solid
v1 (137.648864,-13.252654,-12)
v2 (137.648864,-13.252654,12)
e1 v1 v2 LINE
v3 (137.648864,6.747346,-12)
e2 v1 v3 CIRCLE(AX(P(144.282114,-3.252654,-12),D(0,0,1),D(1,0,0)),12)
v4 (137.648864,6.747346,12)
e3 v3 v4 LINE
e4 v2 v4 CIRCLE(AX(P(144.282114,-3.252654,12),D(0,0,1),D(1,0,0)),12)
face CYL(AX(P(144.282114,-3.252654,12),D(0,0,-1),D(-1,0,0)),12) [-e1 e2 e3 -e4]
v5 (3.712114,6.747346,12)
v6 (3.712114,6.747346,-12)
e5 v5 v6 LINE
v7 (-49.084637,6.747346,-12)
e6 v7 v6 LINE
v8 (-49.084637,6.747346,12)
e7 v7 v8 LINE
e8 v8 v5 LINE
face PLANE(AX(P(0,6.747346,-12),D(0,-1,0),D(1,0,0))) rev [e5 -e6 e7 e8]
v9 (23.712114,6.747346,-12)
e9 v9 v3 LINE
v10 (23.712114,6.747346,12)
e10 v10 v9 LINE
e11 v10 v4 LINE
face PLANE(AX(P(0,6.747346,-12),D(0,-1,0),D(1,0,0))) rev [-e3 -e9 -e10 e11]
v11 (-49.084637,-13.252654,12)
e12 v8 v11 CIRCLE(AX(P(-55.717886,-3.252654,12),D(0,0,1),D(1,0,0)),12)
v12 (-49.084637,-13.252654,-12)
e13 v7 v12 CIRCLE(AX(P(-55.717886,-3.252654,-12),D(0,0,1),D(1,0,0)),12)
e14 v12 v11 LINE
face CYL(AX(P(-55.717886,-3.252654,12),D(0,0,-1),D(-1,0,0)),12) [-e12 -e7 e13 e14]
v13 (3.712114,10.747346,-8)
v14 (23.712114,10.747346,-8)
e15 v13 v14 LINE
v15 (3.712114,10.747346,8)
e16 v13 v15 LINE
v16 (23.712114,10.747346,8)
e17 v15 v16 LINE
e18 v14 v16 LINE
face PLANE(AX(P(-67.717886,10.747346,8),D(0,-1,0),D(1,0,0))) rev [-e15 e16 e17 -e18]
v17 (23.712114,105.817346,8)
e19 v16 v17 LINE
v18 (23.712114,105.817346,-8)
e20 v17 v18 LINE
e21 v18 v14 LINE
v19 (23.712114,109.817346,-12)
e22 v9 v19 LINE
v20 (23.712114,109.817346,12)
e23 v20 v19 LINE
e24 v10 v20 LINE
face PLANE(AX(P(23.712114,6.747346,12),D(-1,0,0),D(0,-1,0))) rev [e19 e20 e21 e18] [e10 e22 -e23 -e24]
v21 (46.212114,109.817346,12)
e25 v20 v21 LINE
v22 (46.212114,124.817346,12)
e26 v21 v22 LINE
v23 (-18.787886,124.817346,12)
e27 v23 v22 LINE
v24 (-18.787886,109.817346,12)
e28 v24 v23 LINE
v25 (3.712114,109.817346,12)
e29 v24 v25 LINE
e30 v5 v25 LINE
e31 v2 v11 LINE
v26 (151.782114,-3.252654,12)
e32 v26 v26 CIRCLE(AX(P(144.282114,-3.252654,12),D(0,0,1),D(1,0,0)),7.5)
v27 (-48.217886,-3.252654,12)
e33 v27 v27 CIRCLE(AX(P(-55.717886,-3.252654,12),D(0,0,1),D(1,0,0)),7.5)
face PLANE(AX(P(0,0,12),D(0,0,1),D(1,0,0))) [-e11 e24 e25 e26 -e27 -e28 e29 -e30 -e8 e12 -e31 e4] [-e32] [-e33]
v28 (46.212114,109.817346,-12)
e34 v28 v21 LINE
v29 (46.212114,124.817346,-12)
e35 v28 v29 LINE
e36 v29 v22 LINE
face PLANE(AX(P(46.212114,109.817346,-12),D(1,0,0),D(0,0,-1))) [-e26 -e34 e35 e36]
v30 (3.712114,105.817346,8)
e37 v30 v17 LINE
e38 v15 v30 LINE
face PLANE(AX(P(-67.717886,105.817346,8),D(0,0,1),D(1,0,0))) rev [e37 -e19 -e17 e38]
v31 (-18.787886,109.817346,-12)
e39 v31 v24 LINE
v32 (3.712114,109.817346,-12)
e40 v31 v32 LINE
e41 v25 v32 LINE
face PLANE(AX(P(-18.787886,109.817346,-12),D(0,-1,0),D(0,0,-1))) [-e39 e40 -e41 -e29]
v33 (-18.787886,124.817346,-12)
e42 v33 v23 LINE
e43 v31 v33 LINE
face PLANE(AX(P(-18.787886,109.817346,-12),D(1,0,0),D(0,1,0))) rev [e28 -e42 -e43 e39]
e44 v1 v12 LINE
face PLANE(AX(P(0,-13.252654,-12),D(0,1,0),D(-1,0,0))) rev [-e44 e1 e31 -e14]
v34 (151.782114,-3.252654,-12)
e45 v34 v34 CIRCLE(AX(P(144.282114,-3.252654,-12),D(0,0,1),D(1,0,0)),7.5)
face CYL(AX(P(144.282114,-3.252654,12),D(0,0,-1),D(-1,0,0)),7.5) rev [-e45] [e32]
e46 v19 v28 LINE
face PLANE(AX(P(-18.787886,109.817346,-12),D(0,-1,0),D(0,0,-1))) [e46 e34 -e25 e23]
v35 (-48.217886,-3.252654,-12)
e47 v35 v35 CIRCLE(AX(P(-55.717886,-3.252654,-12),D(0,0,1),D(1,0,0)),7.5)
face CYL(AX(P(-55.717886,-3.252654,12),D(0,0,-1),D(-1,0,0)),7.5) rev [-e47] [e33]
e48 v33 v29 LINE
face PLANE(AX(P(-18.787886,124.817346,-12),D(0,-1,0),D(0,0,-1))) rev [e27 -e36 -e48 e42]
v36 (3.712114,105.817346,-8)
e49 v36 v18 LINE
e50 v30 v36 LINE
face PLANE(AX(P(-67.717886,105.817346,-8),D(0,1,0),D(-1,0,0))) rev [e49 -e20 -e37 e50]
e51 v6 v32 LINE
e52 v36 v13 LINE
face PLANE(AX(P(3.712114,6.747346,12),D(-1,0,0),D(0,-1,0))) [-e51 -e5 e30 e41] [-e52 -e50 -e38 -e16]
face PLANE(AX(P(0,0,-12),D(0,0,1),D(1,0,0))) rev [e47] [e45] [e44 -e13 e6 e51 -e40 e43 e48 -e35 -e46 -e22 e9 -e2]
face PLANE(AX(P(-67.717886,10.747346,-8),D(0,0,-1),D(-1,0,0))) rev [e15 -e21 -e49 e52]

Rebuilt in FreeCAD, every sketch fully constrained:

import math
import FreeCAD as App
import Part
import Sketcher

V = App.Vector
Q = App.Units.Quantity

doc = App.newDocument("Part")
body = doc.addObject("PartDesign::Body", "Body")

# Sketch on XY plane
sketch1 = doc.addObject("Sketcher::SketchObject", "Sketch")
body.addObject(sketch1)
sketch1.AttachmentSupport = (doc.XY_Plane, [""])
sketch1.MapMode = "FlatFace"
sketch1.addGeometry([
    Part.ArcOfCircle(Part.Circle(V(-56, -3, 0), V(0, 0, 1), 12), math.radians(56), math.radians(304)),  # 0
    Part.LineSegment(V(-49, -13, 0), V(138, -13, 0)),  # 1
    Part.ArcOfCircle(Part.Circle(V(144, -3, 0), V(0, 0, 1), 12), math.radians(-124), math.radians(124)),  # 2
    Part.LineSegment(V(138, 7, 0), V(24, 7, 0)),  # 3
    Part.LineSegment(V(24, 7, 0), V(24, 110, 0)),  # 4
    Part.LineSegment(V(24, 110, 0), V(46, 110, 0)),  # 5
    Part.LineSegment(V(46, 110, 0), V(46, 125, 0)),  # 6
    Part.LineSegment(V(46, 125, 0), V(-19, 125, 0)),  # 7
    Part.LineSegment(V(-19, 125, 0), V(-19, 110, 0)),  # 8
    Part.LineSegment(V(-19, 110, 0), V(4, 110, 0)),  # 9
    Part.LineSegment(V(4, 110, 0), V(4, 7, 0)),  # 10
    Part.LineSegment(V(4, 7, 0), V(-49, 7, 0)),  # 11
    Part.Circle(V(-56, -3, 0), V(0, 0, 1), 8),  # 12
    Part.Circle(V(144, -3, 0), V(0, 0, 1), 8),  # 13
], False)
sketch1.addConstraint([
    Sketcher.Constraint("Coincident", 0, 2, 1, 1),
    Sketcher.Constraint("Coincident", 1, 2, 2, 1),
    Sketcher.Constraint("Coincident", 2, 2, 3, 1),
    Sketcher.Constraint("Coincident", 3, 2, 4, 1),
    Sketcher.Constraint("Coincident", 4, 2, 5, 1),
    Sketcher.Constraint("Coincident", 5, 2, 6, 1),
    Sketcher.Constraint("Coincident", 6, 2, 7, 1),
    Sketcher.Constraint("Coincident", 7, 2, 8, 1),
    Sketcher.Constraint("Coincident", 8, 2, 9, 1),
    Sketcher.Constraint("Coincident", 9, 2, 10, 1),
    Sketcher.Constraint("Coincident", 10, 2, 11, 1),
    Sketcher.Constraint("Coincident", 11, 2, 0, 1),
    Sketcher.Constraint("Horizontal", 1),
    Sketcher.Constraint("Horizontal", 3),
    Sketcher.Constraint("Vertical", 4),
    Sketcher.Constraint("Horizontal", 5),
    Sketcher.Constraint("Vertical", 6),
    Sketcher.Constraint("Horizontal", 7),
    Sketcher.Constraint("Vertical", 8),
    Sketcher.Constraint("Horizontal", 9),
    Sketcher.Constraint("Vertical", 10),
    Sketcher.Constraint("Horizontal", 11),
    Sketcher.Constraint("Coincident", 12, 3, 0, 3),
    Sketcher.Constraint("Coincident", 13, 3, 2, 3),
    Sketcher.Constraint("Equal", 0, 2),
    Sketcher.Constraint("Equal", 12, 13),
    Sketcher.Constraint("Horizontal", 0, 3, 2, 3),
    Sketcher.Constraint("Horizontal", 5, 2, 8, 2),
    Sketcher.Constraint("Horizontal", 3, 2, 10, 2),
    Sketcher.Constraint("Vertical", 1, 2, 2, 2),
    Sketcher.Constraint("Equal", 5, 9),
    Sketcher.Constraint("Diameter", 12, Q("15 mm")),
    Sketcher.Constraint("Radius", 0, Q("12 mm")),
    Sketcher.Constraint("DistanceX", 7, 2, 7, 1, Q("65 mm")),
    Sketcher.Constraint("DistanceY", 6, 1, 6, 2, Q("15 mm")),
    Sketcher.Constraint("DistanceX", 5, 1, 5, 2, Q("22.5 mm")),
    Sketcher.Constraint("DistanceX", 0, 3, 2, 3, Q("200 mm")),
    Sketcher.Constraint("DistanceY", 0, 2, 0, 3, Q("10 mm")),
    Sketcher.Constraint("DistanceY", 4, 1, 4, 2, Q("103.07 mm")),
    Sketcher.Constraint("DistanceX", 0, 3, 3, 2, Q("79.43 mm")),
    Sketcher.Constraint("DistanceX", 0, 3, -1, 1, Q("55.717886 mm")),
    Sketcher.Constraint("DistanceY", 0, 3, -1, 1, Q("3.252654 mm")),
])
pad1 = doc.addObject("PartDesign::Pad", "Pad")
body.addObject(pad1)
pad1.Profile = sketch1
pad1.Type = "TwoLengths"
pad1.Length = 12
pad1.Length2 = 12

# Sketch on YZ plane
sketch2 = doc.addObject("Sketcher::SketchObject", "Sketch001")
body.addObject(sketch2)
sketch2.AttachmentSupport = (doc.YZ_Plane, [""])
sketch2.MapMode = "FlatFace"
sketch2.AttachmentOffset = App.Placement(V(0, 0, 23.712114), App.Rotation())
sketch2.addGeometry([
    Part.LineSegment(V(106, 8, 0), V(11, 8, 0)),
    Part.LineSegment(V(11, 8, 0), V(11, -8, 0)),
    Part.LineSegment(V(11, -8, 0), V(106, -8, 0)),
    Part.LineSegment(V(106, -8, 0), V(106, 8, 0)),
], False)
sketch2.addConstraint([
    Sketcher.Constraint("Coincident", 0, 2, 1, 1),
    Sketcher.Constraint("Coincident", 1, 2, 2, 1),
    Sketcher.Constraint("Coincident", 2, 2, 3, 1),
    Sketcher.Constraint("Coincident", 3, 2, 0, 1),
    Sketcher.Constraint("Horizontal", 0),
    Sketcher.Constraint("Vertical", 1),
    Sketcher.Constraint("Horizontal", 2),
    Sketcher.Constraint("Vertical", 3),
    Sketcher.Constraint("DistanceY", 1, 2, 1, 1, Q("16 mm")),
    Sketcher.Constraint("DistanceY", -1, 1, 0, 2, Q("8 mm")),
    Sketcher.Constraint("DistanceX", 0, 2, 0, 1, Q("95.07 mm")),
    Sketcher.Constraint("DistanceX", -1, 1, 0, 2, Q("10.747346 mm")),
])
pocket1 = doc.addObject("PartDesign::Pocket", "Pocket")
body.addObject(pocket1)
pocket1.Profile = sketch2
pocket1.Type = "ThroughAll"
pocket1.Midplane = True

doc.recompute()
